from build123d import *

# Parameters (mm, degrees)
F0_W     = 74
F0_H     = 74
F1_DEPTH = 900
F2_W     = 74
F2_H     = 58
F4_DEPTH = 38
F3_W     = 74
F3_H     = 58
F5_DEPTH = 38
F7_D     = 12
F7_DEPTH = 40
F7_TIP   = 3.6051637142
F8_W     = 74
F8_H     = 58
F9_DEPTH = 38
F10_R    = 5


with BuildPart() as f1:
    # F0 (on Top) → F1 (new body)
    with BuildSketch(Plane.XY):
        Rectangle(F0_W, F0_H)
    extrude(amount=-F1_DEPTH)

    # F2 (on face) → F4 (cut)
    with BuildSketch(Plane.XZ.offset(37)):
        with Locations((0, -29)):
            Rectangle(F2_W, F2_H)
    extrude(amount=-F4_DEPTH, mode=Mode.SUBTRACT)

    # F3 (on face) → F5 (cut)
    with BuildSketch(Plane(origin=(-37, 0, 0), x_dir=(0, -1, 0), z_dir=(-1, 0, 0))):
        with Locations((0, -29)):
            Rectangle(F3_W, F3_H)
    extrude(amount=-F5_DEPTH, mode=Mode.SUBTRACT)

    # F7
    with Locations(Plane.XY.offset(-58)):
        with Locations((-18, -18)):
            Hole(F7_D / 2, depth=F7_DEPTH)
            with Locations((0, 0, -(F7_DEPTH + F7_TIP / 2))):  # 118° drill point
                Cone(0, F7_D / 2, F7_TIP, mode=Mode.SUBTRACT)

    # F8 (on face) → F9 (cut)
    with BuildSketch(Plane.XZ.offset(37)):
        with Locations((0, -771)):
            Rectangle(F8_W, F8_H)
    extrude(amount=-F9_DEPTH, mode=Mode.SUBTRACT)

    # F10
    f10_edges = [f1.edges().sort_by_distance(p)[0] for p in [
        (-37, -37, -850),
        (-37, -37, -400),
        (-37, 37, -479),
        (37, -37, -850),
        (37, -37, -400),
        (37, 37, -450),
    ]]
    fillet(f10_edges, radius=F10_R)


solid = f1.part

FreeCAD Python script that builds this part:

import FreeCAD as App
import Part
import Sketcher
from FreeCAD import Vector
Q = App.Units.Quantity


def edges_at(feature, points):
    """Names of the edges that pass closest to the given points."""
    edges = feature.Shape.Edges
    near = lambda p: min(range(len(edges)), key=lambda i: edges[i].distToShape(Part.Vertex(*p))[0])
    return sorted({f"Edge{near(p) + 1}" for p in points})


def add_polygon(sketch, points):
    """Adds a closed chain of lines whose ends are joined by coincident constraints."""
    first, n = sketch.GeometryCount, len(points)
    for a, b in zip(points, points[1:] + points[:1]):
        sketch.addGeometry(Part.LineSegment(App.Vector(*a, 0), App.Vector(*b, 0)), False)
    for i in range(n):
        sketch.addConstraint(Sketcher.Constraint("Coincident", first + i, 2, first + (i + 1) % n, 1))

doc = App.newDocument("Part")
params = doc.addObject("Spreadsheet::Sheet", "Params")
for row, (alias, value) in enumerate([
    ("sketch1_width", "74 mm"),
    ("pad1_length", "900 mm"),
    ("sketch2_width", "74 mm"),
    ("sketch2_height", "58 mm"),
    ("pocket1_length", "38 mm"),
    ("sketch3_width", "74 mm"),
    ("sketch3_height", "58 mm"),
    ("pocket2_length", "38 mm"),
    ("sketch4_diameter", "12 mm"),
    ("hole_diameter", "12 mm"),
    ("hole_depth", "40 mm"),
    ("sketch5_width", "74 mm"),
    ("sketch5_height", "58 mm"),
    ("pocket3_length", "38 mm"),
    ("fillet_radius", "5 mm"),
], start=1):
    params.set(f"A{row}", alias)
    params.set(f"B{row}", "=" + value)
    params.setAlias(f"B{row}", alias)

body = doc.addObject("PartDesign::Body", "Body")

# Sketch on XY plane
sketch1 = doc.addObject("Sketcher::SketchObject", "Sketch")
body.addObject(sketch1)
sketch1.AttachmentSupport = (doc.XY_Plane, [""])
sketch1.MapMode = "FlatFace"
add_polygon(sketch1, [(-37, 37), (-37, -37), (37, -37), (37, 37)])  # lines 0-3
sketch1.addConstraint(Sketcher.Constraint("Vertical", 0))
sketch1.addConstraint(Sketcher.Constraint("Horizontal", 1))
sketch1.addConstraint(Sketcher.Constraint("Vertical", 2))
sketch1.addConstraint(Sketcher.Constraint("Horizontal", 3))
sketch1.addConstraint(Sketcher.Constraint("Symmetric", 0, 2, 2, 2, -1, 1))
sketch1.addConstraint(Sketcher.Constraint("Equal", 3, 0))
sketch1.addConstraint(Sketcher.Constraint("DistanceX", 1, 1, 1, 2, Q("74 mm")))
sketch1.setExpression("Constraints[10]", "Params.sketch1_width")
pad1 = doc.addObject("PartDesign::Pad", "Pad")
body.addObject(pad1)
pad1.Profile = sketch1
pad1.setExpression("Length", "Params.pad1_length")
pad1.Reversed = True

# Sketch on XZ plane
sketch2 = doc.addObject("Sketcher::SketchObject", "Sketch001")
body.addObject(sketch2)
sketch2.AttachmentSupport = (doc.XZ_Plane, [""])
sketch2.MapMode = "FlatFace"
sketch2.AttachmentOffset = App.Placement(Vector(0, 0, 37), App.Rotation())
add_polygon(sketch2, [(-37, 0), (-37, -58), (37, -58), (37, 0)])  # lines 0-3
sketch2.addConstraint(Sketcher.Constraint("Vertical", 0))
sketch2.addConstraint(Sketcher.Constraint("Horizontal", 1))
sketch2.addConstraint(Sketcher.Constraint("Vertical", 2))
sketch2.addConstraint(Sketcher.Constraint("Horizontal", 3))
sketch2.addConstraint(Sketcher.Constraint("Symmetric", 2, 2, 3, 2, -1, 1))
sketch2.addConstraint(Sketcher.Constraint("DistanceX", 1, 1, 1, 2, Q("74 mm")))
sketch2.addConstraint(Sketcher.Constraint("DistanceY", 0, 2, 0, 1, Q("58 mm")))
sketch2.setExpression("Constraints[9]", "Params.sketch2_width")
sketch2.setExpression("Constraints[10]", "Params.sketch2_height")
pocket1 = doc.addObject("PartDesign::Pocket", "Pocket")
body.addObject(pocket1)
pocket1.Profile = sketch2
pocket1.setExpression("Length", "Params.pocket1_length")

# Sketch on YZ plane
sketch3 = doc.addObject("Sketcher::SketchObject", "Sketch002")
body.addObject(sketch3)
sketch3.AttachmentSupport = (doc.YZ_Plane, [""])
sketch3.MapMode = "FlatFace"
sketch3.AttachmentOffset = App.Placement(Vector(0, 0, -37), App.Rotation())
add_polygon(sketch3, [(37, 0), (37, -58), (-37, -58), (-37, 0)])  # lines 0-3
sketch3.addConstraint(Sketcher.Constraint("Vertical", 0))
sketch3.addConstraint(Sketcher.Constraint("Horizontal", 1))
sketch3.addConstraint(Sketcher.Constraint("Vertical", 2))
sketch3.addConstraint(Sketcher.Constraint("Horizontal", 3))
sketch3.addConstraint(Sketcher.Constraint("Symmetric", 2, 2, 3, 2, -1, 1))
sketch3.addConstraint(Sketcher.Constraint("DistanceX", 1, 2, 1, 1, Q("74 mm")))
sketch3.addConstraint(Sketcher.Constraint("DistanceY", 0, 2, 0, 1, Q("58 mm")))
sketch3.setExpression("Constraints[9]", "Params.sketch3_width")
sketch3.setExpression("Constraints[10]", "Params.sketch3_height")
pocket2 = doc.addObject("PartDesign::Pocket", "Pocket001")
body.addObject(pocket2)
pocket2.Profile = sketch3
pocket2.setExpression("Length", "Params.pocket2_length")
pocket2.Reversed = True

# Sketch on XY plane
sketch4 = doc.addObject("Sketcher::SketchObject", "Sketch003")
body.addObject(sketch4)
sketch4.AttachmentSupport = (doc.XY_Plane, [""])
sketch4.MapMode = "FlatFace"
sketch4.AttachmentOffset = App.Placement(Vector(0, 0, -58), App.Rotation())
sketch4.addGeometry(Part.Circle(Vector(-18, -18, 0), Vector(0, 0, 1), 6), False)
sketch4.addConstraint(Sketcher.Constraint("Diameter", 0, Q("12 mm")))
sketch4.addConstraint(Sketcher.Constraint("DistanceX", 0, 3, -1, 1, Q("18 mm")))
sketch4.addConstraint(Sketcher.Constraint("DistanceY", 0, 3, -1, 1, Q("18 mm")))
sketch4.setExpression("Constraints[0]", "Params.sketch4_diameter")
doc.recompute()
hole = doc.addObject("PartDesign::Hole", "Hole")
body.addObject(hole)
hole.Profile = sketch4
hole.ThreadType = "None"
hole.setExpression("Diameter", "Params.hole_diameter")
hole.DepthType = "Dimension"
hole.setExpression("Depth", "Params.hole_depth")
hole.DrillPoint = "Angled"
hole.DrillPointAngle = 118

# Sketch on XZ plane
sketch5 = doc.addObject("Sketcher::SketchObject", "Sketch004")
body.addObject(sketch5)
sketch5.AttachmentSupport = (doc.XZ_Plane, [""])
sketch5.MapMode = "FlatFace"
sketch5.AttachmentOffset = App.Placement(Vector(0, 0, 37), App.Rotation())
add_polygon(sketch5, [(-37, -742), (-37, -800), (37, -800), (37, -742)])  # lines 0-3
sketch5.addConstraint(Sketcher.Constraint("Vertical", 0))
sketch5.addConstraint(Sketcher.Constraint("Horizontal", 1))
sketch5.addConstraint(Sketcher.Constraint("Vertical", 2))
sketch5.addConstraint(Sketcher.Constraint("Horizontal", 3))
sketch5.addConstraint(Sketcher.Constraint("DistanceX", 1, 1, 1, 2, Q("74 mm")))
sketch5.addConstraint(Sketcher.Constraint("DistanceY", 0, 2, 0, 1, Q("58 mm")))
sketch5.addConstraint(Sketcher.Constraint("DistanceX", 0, 2, -1, 1, Q("37 mm")))
sketch5.addConstraint(Sketcher.Constraint("DistanceY", 0, 2, -1, 1, Q("800 mm")))
sketch5.setExpression("Constraints[8]", "Params.sketch5_width")
sketch5.setExpression("Constraints[9]", "Params.sketch5_height")
pocket3 = doc.addObject("PartDesign::Pocket", "Pocket002")
body.addObject(pocket3)
pocket3.Profile = sketch5
pocket3.setExpression("Length", "Params.pocket3_length")
doc.recompute()

fillet = doc.addObject("PartDesign::Fillet", "Fillet")
body.addObject(fillet)
fillet.Base = (pocket3, edges_at(pocket3, [
    (-37, -37, -850),
    (-37, -37, -400),
    (-37, 37, -479),
    (37, -37, -850),
    (37, -37, -400),
    (37, 37, -450),
]))
fillet.setExpression("Radius", "Params.fillet_radius")

doc.recompute()
